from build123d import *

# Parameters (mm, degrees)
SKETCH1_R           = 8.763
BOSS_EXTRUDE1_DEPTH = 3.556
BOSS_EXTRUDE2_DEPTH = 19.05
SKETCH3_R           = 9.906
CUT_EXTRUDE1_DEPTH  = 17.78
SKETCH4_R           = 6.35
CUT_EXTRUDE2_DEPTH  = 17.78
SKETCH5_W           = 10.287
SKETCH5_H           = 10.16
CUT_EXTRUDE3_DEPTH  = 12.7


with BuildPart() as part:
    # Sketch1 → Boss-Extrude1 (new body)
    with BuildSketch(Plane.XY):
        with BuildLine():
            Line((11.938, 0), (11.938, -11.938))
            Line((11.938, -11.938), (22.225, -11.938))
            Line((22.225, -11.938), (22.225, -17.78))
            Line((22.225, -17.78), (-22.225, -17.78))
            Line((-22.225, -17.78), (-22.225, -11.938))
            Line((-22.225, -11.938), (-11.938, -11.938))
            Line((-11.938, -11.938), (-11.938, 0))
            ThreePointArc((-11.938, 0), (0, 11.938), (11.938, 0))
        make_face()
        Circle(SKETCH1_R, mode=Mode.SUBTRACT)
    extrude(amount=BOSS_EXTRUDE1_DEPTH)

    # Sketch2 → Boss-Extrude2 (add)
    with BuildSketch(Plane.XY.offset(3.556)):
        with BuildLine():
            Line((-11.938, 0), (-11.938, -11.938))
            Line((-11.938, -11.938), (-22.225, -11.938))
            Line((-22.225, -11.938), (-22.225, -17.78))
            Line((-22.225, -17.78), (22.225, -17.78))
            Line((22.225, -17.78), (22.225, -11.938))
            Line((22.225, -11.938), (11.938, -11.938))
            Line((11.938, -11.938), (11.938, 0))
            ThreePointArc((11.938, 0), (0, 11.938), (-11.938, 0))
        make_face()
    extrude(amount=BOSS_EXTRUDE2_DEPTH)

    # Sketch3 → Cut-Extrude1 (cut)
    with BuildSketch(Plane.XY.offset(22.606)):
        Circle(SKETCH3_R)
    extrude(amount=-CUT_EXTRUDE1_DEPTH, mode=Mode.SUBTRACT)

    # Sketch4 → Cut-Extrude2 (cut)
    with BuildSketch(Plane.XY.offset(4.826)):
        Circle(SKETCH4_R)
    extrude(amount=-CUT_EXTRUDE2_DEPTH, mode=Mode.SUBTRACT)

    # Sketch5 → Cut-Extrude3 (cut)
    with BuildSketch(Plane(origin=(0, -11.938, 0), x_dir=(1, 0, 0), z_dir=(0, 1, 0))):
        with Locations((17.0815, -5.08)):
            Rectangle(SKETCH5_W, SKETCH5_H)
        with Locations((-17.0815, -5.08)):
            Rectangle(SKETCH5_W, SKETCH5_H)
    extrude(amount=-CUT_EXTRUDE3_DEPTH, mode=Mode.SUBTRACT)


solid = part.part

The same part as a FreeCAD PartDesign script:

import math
import FreeCAD as App
import Part
import Sketcher

V = App.Vector
Q = App.Units.Quantity


def add_polygon(sketch, points):
    """Adds a closed chain of lines whose ends are joined by coincident constraints."""
    first, n = sketch.GeometryCount, len(points)
    for a, b in zip(points, points[1:] + points[:1]):
        sketch.addGeometry(Part.LineSegment(App.Vector(*a, 0), App.Vector(*b, 0)), False)
    for i in range(n):
        sketch.addConstraint(Sketcher.Constraint("Coincident", first + i, 2, first + (i + 1) % n, 1))

doc = App.newDocument("Part")
body = doc.addObject("PartDesign::Body", "Body")

sketch1 = doc.addObject("Sketcher::SketchObject", "Sketch")
body.addObject(sketch1)
sketch1.AttachmentSupport = (doc.XY_Plane, [""])
sketch1.MapMode = "FlatFace"
sketch1.addGeometry([
    Part.LineSegment(V(12, -12, 0), V(12, 0, 0)),
    Part.ArcOfCircle(Part.Circle(V(0, 0, 0), V(0, 0, 1), 12), math.radians(0), math.radians(180)),
    Part.LineSegment(V(-12, 0, 0), V(-12, -12, 0)),
    Part.LineSegment(V(-12, -12, 0), V(-22, -12, 0)),
    Part.LineSegment(V(-22, -12, 0), V(-22, -18, 0)),
    Part.LineSegment(V(-22, -18, 0), V(22, -18, 0)),
    Part.LineSegment(V(22, -18, 0), V(22, -12, 0)),
    Part.LineSegment(V(22, -12, 0), V(12, -12, 0)),
    Part.Circle(V(0, 0, 0), V(0, 0, 1), 9),
], False)
sketch1.addConstraint([
    Sketcher.Constraint("Tangent", 0, 2, 1, 1),
    Sketcher.Constraint("Tangent", 1, 2, 2, 1),
    Sketcher.Constraint("Coincident", 2, 2, 3, 1),
    Sketcher.Constraint("Coincident", 3, 2, 4, 1),
    Sketcher.Constraint("Coincident", 4, 2, 5, 1),
    Sketcher.Constraint("Coincident", 5, 2, 6, 1),
    Sketcher.Constraint("Coincident", 6, 2, 7, 1),
    Sketcher.Constraint("Coincident", 7, 2, 0, 1),
    Sketcher.Constraint("Vertical", 0),
    Sketcher.Constraint("Vertical", 2),
    Sketcher.Constraint("Horizontal", 3),
    Sketcher.Constraint("Vertical", 4),
    Sketcher.Constraint("Horizontal", 5),
    Sketcher.Constraint("Vertical", 6),
    Sketcher.Constraint("Horizontal", 7),
    Sketcher.Constraint("Coincident", 1, 3, -1, 1),
    Sketcher.Constraint("Coincident", 8, 3, -1, 1),
    Sketcher.Constraint("Symmetric", 3, 2, 6, 2, -2),
    Sketcher.Constraint("Diameter", 8, Q("0.69 in")),
    Sketcher.Constraint("Radius", 1, Q("0.47 in")),
    Sketcher.Constraint("DistanceX", 5, 1, 5, 2, Q("1.75 in")),
    Sketcher.Constraint("DistanceY", 0, 1, 0, 2, Q("0.47 in")),
    Sketcher.Constraint("DistanceY", 4, 2, 4, 1, Q("0.23 in")),
])
pad1 = doc.addObject("PartDesign::Pad", "Pad")
body.addObject(pad1)
pad1.Profile = sketch1
pad1.Length = Q("0.14 in")

sketch2 = doc.addObject("Sketcher::SketchObject", "Sketch001")
body.addObject(sketch2)
sketch2.AttachmentSupport = (doc.XY_Plane, [""])
sketch2.MapMode = "FlatFace"
sketch2.AttachmentOffset = App.Placement(V(0, 0, 0.14 * 25.4), App.Rotation())
sketch2.addGeometry([
    Part.LineSegment(V(-12, 0, 0), V(-12, -12, 0)),
    Part.LineSegment(V(-12, -12, 0), V(-22, -12, 0)),
    Part.LineSegment(V(-22, -12, 0), V(-22, -18, 0)),
    Part.LineSegment(V(-22, -18, 0), V(22, -18, 0)),
    Part.LineSegment(V(22, -18, 0), V(22, -12, 0)),
    Part.LineSegment(V(22, -12, 0), V(12, -12, 0)),
    Part.LineSegment(V(12, -12, 0), V(12, 0, 0)),
    Part.ArcOfCircle(Part.Circle(V(0, 0, 0), V(0, 0, 1), 12), math.radians(0), math.radians(180)),
], False)
sketch2.addConstraint([
    Sketcher.Constraint("Coincident", 0, 2, 1, 1),
    Sketcher.Constraint("Coincident", 1, 2, 2, 1),
    Sketcher.Constraint("Coincident", 2, 2, 3, 1),
    Sketcher.Constraint("Coincident", 3, 2, 4, 1),
    Sketcher.Constraint("Coincident", 4, 2, 5, 1),
    Sketcher.Constraint("Coincident", 5, 2, 6, 1),
    Sketcher.Constraint("Tangent", 6, 2, 7, 1),
    Sketcher.Constraint("Tangent", 7, 2, 0, 1),
    Sketcher.Constraint("Vertical", 0),
    Sketcher.Constraint("Horizontal", 1),
    Sketcher.Constraint("Vertical", 2),
    Sketcher.Constraint("Horizontal", 3),
    Sketcher.Constraint("Vertical", 4),
    Sketcher.Constraint("Horizontal", 5),
    Sketcher.Constraint("Vertical", 6),
    Sketcher.Constraint("Coincident", 7, 3, -1, 1),
    Sketcher.Constraint("Symmetric", 1, 2, 4, 2, -2),
    Sketcher.Constraint("Radius", 7, Q("0.47 in")),
    Sketcher.Constraint("DistanceX", 3, 1, 3, 2, Q("1.75 in")),
    Sketcher.Constraint("DistanceY", 0, 2, 0, 1, Q("0.47 in")),
    Sketcher.Constraint("DistanceY", 2, 2, 2, 1, Q("0.23 in")),
])
pad2 = doc.addObject("PartDesign::Pad", "Pad001")
body.addObject(pad2)
pad2.Profile = sketch2
pad2.Length = Q("0.75 in")

sketch3 = doc.addObject("Sketcher::SketchObject", "Sketch002")
body.addObject(sketch3)
sketch3.AttachmentSupport = (doc.XY_Plane, [""])
sketch3.MapMode = "FlatFace"
sketch3.AttachmentOffset = App.Placement(V(0, 0, 0.89 * 25.4), App.Rotation())
sketch3.addGeometry(Part.Circle(V(0, 0, 0), V(0, 0, 1), 10), False)
sketch3.addConstraint([
    Sketcher.Constraint("Coincident", 0, 3, -1, 1),
    Sketcher.Constraint("Diameter", 0, Q("0.78 in")),
])
pocket1 = doc.addObject("PartDesign::Pocket", "Pocket")
body.addObject(pocket1)
pocket1.Profile = sketch3
pocket1.Length = Q("0.7 in")

sketch4 = doc.addObject("Sketcher::SketchObject", "Sketch003")
body.addObject(sketch4)
sketch4.AttachmentSupport = (doc.XY_Plane, [""])
sketch4.MapMode = "FlatFace"
sketch4.AttachmentOffset = App.Placement(V(0, 0, 0.19 * 25.4), App.Rotation())
sketch4.addGeometry(Part.Circle(V(0, 0, 0), V(0, 0, 1), 6), False)
sketch4.addConstraint([
    Sketcher.Constraint("Coincident", 0, 3, -1, 1),
    Sketcher.Constraint("Diameter", 0, Q("0.5 in")),
])
pocket2 = doc.addObject("PartDesign::Pocket", "Pocket001")
body.addObject(pocket2)
pocket2.Profile = sketch4
pocket2.Length = Q("0.7 in")

sketch5 = doc.addObject("Sketcher::SketchObject", "Sketch004")
body.addObject(sketch5)
sketch5.AttachmentSupport = (doc.XZ_Plane, [""])
sketch5.MapMode = "FlatFace"
sketch5.AttachmentOffset = App.Placement(V(0, 0, 0.47 * 25.4), App.Rotation())
add_polygon(sketch5, [(12, 0), (12, 10), (22, 10), (22, 0)])
add_polygon(sketch5, [(-22, 0), (-22, 10), (-12, 10), (-12, 0)])
sketch5.addConstraint([
    Sketcher.Constraint("Vertical", 0),
    Sketcher.Constraint("Horizontal", 1),
    Sketcher.Constraint("Vertical", 2),
    Sketcher.Constraint("Horizontal", 3),
    Sketcher.Constraint("Vertical", 4),
    Sketcher.Constraint("Horizontal", 5),
    Sketcher.Constraint("Vertical", 6),
    Sketcher.Constraint("Horizontal", 7),
    Sketcher.Constraint("Symmetric", 3, 2, 6, 2, -1, 1),
    Sketcher.Constraint("Symmetric", 1, 2, 4, 2, -2),
    Sketcher.Constraint("PointOnObject", 2, 2, -1),
    Sketcher.Constraint("DistanceY", 0, 1, 0, 2, Q("0.4 in")),
    Sketcher.Constraint("DistanceX", 1, 1, 1, 2, Q("0.405 in")),
    Sketcher.Constraint("DistanceX", -1, 1, 0, 2, Q("0.47 in")),
])
pocket3 = doc.addObject("PartDesign::Pocket", "Pocket002")
body.addObject(pocket3)
pocket3.Profile = sketch5
pocket3.Length = Q("0.5 in")
pocket3.Reversed = True

doc.recompute()
